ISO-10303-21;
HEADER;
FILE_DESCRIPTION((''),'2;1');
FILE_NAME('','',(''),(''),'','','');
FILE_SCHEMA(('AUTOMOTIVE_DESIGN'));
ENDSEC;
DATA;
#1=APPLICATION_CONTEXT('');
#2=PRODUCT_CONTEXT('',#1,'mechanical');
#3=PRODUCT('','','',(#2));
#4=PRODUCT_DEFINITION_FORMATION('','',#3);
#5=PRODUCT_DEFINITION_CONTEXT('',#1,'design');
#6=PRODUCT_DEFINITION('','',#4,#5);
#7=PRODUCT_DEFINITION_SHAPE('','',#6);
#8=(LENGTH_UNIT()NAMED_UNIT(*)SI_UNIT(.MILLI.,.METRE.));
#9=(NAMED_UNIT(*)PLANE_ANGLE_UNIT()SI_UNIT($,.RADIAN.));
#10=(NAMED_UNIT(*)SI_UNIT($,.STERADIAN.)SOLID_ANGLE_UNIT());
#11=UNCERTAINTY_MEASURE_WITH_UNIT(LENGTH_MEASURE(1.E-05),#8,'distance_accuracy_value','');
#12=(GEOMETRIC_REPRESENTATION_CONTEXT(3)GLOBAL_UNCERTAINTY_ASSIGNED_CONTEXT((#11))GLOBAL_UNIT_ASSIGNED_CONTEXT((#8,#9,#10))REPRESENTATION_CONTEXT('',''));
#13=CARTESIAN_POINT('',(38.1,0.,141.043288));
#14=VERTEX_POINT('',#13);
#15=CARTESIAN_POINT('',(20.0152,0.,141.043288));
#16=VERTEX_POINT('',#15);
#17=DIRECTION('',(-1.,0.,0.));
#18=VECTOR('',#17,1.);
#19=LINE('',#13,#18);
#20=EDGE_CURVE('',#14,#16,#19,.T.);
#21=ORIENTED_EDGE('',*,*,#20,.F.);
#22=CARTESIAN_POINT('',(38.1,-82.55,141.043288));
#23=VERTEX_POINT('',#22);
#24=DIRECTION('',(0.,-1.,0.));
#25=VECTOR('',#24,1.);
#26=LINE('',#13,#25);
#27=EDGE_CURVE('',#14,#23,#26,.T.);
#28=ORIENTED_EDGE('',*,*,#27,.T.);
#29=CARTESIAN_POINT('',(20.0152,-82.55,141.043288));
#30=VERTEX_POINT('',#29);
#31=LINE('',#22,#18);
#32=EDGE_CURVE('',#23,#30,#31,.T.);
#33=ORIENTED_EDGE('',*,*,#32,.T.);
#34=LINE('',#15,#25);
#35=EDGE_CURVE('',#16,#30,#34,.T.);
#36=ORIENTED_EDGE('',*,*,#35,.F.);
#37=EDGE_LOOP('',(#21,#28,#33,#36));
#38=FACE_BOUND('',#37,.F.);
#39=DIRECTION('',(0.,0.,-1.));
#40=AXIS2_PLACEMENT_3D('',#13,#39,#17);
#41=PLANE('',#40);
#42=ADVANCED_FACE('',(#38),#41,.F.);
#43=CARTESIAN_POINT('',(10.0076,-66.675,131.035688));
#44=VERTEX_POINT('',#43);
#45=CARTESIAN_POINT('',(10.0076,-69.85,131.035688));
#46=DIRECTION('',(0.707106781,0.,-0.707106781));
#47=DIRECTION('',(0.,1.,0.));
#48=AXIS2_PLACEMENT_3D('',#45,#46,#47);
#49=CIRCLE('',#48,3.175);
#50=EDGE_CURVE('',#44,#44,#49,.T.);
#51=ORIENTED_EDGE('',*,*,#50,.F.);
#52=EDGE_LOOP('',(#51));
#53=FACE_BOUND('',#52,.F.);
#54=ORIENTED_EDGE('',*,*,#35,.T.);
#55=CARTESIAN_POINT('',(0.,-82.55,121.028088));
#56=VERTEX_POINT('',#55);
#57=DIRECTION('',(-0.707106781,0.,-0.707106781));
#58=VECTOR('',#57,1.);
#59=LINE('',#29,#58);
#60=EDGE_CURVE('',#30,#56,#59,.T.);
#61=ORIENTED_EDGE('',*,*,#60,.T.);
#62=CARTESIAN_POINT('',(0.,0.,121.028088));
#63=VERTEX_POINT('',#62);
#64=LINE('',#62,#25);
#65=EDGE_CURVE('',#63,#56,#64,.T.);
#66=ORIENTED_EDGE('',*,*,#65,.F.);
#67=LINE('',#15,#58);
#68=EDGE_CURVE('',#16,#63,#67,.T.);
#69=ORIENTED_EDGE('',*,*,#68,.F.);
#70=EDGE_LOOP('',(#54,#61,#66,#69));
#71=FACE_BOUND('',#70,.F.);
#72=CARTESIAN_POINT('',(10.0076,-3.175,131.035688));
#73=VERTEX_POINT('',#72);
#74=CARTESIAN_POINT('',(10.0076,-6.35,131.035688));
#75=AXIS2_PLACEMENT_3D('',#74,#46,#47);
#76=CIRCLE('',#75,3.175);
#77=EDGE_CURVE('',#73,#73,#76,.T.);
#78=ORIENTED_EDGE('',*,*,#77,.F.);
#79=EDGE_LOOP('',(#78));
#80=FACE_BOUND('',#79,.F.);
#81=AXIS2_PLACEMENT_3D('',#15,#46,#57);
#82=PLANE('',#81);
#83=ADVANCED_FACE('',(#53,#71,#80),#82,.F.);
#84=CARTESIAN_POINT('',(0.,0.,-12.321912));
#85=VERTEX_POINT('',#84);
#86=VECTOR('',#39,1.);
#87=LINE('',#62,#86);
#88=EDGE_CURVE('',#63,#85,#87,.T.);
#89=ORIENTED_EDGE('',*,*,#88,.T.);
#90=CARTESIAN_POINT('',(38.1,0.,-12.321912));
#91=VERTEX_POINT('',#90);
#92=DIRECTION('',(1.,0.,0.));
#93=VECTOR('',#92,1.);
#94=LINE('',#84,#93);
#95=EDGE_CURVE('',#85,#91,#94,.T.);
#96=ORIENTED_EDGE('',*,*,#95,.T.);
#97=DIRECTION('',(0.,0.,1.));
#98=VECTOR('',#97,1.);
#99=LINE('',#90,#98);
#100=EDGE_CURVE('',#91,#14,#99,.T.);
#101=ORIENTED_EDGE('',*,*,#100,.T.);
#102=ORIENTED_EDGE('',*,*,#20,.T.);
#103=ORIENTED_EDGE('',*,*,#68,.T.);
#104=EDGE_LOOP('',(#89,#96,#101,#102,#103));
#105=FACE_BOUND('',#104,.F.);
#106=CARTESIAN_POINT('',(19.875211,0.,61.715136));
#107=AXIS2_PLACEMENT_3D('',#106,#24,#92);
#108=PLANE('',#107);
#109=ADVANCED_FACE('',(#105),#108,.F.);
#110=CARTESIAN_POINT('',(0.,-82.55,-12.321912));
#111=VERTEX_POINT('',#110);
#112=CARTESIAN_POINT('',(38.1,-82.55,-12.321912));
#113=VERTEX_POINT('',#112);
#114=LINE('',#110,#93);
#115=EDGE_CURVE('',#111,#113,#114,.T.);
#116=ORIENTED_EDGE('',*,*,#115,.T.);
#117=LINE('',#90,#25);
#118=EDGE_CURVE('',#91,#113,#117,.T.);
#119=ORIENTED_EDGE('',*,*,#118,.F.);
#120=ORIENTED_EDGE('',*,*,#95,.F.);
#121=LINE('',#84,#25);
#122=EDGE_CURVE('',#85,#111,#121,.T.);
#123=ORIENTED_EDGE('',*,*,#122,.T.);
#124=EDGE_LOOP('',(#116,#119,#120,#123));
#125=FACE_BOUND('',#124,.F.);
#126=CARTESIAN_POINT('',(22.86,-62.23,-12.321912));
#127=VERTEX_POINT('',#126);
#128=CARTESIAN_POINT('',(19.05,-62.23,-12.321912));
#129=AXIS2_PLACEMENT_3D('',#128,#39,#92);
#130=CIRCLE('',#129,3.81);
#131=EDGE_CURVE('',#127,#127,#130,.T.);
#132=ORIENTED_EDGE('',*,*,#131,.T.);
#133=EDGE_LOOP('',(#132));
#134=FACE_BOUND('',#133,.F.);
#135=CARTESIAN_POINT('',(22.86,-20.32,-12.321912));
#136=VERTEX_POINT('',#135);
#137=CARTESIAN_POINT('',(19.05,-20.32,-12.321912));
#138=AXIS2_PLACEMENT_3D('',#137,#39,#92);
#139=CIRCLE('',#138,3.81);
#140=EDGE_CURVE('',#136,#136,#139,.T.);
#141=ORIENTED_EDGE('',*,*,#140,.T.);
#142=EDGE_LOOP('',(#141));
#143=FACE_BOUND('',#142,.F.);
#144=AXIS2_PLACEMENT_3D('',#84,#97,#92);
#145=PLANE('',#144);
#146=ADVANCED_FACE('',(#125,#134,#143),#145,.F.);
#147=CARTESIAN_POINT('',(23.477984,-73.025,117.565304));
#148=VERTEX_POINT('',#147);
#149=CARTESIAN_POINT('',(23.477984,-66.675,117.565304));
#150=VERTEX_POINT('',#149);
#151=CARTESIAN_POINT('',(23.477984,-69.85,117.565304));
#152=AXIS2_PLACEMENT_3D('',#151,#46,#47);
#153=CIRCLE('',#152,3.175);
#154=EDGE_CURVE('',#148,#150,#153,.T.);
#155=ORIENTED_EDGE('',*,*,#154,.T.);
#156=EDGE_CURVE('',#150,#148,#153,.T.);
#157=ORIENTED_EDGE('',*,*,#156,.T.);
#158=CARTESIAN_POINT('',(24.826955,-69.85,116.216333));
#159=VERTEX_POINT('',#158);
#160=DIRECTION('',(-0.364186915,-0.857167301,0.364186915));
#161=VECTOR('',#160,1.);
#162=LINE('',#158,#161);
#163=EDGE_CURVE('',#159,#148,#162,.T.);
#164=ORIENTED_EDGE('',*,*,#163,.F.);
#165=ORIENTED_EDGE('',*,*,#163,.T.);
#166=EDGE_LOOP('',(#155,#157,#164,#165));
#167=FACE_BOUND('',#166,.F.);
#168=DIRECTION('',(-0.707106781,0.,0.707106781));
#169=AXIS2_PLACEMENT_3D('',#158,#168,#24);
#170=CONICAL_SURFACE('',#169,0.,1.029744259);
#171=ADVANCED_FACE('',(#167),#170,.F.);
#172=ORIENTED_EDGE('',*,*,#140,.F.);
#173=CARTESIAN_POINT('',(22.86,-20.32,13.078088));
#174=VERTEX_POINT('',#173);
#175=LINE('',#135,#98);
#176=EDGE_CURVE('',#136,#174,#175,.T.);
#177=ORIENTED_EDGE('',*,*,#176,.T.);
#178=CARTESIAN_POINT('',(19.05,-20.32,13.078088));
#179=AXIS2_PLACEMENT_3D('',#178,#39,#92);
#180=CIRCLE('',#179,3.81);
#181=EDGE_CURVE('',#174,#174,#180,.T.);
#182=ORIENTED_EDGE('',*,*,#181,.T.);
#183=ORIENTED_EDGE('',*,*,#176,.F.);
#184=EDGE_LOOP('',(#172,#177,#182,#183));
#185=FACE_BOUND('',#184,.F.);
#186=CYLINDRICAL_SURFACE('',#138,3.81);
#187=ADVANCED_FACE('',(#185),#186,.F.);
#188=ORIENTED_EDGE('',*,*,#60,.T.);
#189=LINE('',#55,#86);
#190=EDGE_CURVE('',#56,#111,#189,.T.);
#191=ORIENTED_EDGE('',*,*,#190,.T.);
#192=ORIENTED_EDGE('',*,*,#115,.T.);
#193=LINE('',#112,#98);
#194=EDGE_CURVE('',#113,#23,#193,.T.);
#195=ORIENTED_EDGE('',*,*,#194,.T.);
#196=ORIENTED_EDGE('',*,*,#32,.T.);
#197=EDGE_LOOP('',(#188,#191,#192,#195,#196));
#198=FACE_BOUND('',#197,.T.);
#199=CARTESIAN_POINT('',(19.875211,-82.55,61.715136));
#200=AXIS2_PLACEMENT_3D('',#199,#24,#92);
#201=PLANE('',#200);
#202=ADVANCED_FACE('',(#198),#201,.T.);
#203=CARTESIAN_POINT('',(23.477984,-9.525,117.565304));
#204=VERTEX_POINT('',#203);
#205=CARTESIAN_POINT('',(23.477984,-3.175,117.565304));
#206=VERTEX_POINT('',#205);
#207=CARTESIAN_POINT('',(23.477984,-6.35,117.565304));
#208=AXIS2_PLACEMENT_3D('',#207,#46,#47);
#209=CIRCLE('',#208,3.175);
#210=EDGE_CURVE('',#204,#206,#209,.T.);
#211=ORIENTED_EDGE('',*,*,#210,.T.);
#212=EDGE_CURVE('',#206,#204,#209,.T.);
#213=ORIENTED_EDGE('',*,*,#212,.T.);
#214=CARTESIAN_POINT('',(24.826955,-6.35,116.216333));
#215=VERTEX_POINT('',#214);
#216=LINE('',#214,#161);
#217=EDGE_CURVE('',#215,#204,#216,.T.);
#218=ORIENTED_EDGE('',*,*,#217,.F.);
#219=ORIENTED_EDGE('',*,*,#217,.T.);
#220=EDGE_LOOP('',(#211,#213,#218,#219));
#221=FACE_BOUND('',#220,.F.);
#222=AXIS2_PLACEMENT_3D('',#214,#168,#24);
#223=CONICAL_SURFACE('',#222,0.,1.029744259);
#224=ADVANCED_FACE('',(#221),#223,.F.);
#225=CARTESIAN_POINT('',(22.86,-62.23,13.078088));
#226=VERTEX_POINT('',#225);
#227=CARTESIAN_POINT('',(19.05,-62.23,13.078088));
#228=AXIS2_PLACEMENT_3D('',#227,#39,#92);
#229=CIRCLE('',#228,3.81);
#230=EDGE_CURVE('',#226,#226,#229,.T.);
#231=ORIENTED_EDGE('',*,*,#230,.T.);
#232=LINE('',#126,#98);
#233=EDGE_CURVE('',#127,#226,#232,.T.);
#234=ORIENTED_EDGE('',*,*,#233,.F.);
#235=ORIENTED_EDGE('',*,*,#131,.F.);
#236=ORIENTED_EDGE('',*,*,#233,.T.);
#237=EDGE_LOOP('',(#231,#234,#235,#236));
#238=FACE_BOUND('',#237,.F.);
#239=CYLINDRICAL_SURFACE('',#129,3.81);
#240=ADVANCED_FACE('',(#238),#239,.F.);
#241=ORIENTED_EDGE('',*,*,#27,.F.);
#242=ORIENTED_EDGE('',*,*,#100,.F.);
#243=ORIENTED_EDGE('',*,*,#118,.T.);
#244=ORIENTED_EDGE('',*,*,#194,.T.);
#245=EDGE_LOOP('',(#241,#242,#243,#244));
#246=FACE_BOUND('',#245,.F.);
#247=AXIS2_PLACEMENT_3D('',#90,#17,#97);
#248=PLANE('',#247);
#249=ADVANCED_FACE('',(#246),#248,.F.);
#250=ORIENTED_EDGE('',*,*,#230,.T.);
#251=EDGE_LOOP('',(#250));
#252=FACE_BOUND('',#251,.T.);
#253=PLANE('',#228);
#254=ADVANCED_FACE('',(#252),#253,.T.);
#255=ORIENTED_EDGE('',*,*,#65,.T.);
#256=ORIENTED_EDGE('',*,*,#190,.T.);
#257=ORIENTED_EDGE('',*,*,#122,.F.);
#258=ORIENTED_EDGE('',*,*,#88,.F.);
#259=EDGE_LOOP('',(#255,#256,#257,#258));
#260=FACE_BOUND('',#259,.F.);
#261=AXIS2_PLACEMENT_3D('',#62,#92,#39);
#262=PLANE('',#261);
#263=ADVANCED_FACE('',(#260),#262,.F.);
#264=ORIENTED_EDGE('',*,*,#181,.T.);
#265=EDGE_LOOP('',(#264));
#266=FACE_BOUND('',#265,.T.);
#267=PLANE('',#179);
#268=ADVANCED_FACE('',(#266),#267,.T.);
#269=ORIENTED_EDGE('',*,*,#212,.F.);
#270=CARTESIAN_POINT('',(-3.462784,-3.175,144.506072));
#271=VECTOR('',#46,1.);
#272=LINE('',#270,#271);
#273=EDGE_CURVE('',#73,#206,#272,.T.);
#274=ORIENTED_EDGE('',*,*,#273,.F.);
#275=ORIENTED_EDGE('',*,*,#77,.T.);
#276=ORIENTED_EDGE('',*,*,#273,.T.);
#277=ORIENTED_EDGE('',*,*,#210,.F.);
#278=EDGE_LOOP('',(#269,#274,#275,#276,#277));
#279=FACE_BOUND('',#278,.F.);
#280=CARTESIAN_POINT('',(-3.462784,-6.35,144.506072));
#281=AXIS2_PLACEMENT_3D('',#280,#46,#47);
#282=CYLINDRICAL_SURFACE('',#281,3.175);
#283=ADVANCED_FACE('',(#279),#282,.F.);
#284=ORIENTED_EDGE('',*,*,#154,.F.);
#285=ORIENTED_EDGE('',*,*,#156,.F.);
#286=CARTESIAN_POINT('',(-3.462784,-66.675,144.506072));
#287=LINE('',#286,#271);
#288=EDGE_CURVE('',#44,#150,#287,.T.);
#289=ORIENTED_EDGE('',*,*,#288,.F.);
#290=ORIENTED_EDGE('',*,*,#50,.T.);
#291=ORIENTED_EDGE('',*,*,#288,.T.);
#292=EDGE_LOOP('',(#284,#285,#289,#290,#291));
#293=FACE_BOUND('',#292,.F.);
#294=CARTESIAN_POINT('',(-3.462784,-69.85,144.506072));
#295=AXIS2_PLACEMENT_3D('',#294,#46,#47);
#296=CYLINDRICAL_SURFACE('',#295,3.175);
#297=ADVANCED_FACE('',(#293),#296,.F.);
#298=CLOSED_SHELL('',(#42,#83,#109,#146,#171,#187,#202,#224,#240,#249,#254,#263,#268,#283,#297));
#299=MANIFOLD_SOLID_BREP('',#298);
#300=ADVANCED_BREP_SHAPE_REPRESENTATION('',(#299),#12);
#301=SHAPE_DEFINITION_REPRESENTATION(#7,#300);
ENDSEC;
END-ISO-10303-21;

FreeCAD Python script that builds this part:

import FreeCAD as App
import Part
import Sketcher
from FreeCAD import Vector
Q = App.Units.Quantity


def add_polygon(sketch, points):
    """Adds a closed chain of lines whose ends are joined by coincident constraints."""
    first, n = sketch.GeometryCount, len(points)
    for a, b in zip(points, points[1:] + points[:1]):
        sketch.addGeometry(Part.LineSegment(App.Vector(*a, 0), App.Vector(*b, 0)), False)
    for i in range(n):
        sketch.addConstraint(Sketcher.Constraint("Coincident", first + i, 2, first + (i + 1) % n, 1))

doc = App.newDocument("Part")
params = doc.addObject("Spreadsheet::Sheet", "Params")
for row, (alias, value) in enumerate([
    ("sketch1_width", "1.5 in"),
    ("sketch1_height", "5.25 in"),
    ("sketch1_width2", "0.712 in"),
    ("pad1_length", "3.25 in"),
    ("sketch2_diameter", "0.3 in"),
    ("pocket1_length", "1 in"),
    ("sketch3_diameter", "0.25 in"),
    ("hole_diameter", "0.25 in"),
    ("hole_depth", "0.75 in"),
], start=1):
    params.set(f"A{row}", alias)
    params.set(f"B{row}", "=" + value)
    params.setAlias(f"B{row}", alias)

body = doc.addObject("PartDesign::Body", "Body")

# Sketch on XZ plane
sketch1 = doc.addObject("Sketcher::SketchObject", "Sketch")
body.addObject(sketch1)
sketch1.AttachmentSupport = (doc.XZ_Plane, [""])
sketch1.MapMode = "FlatFace"
add_polygon(sketch1, [(0, 121), (0, -12), (38, -12), (38, 141), (20, 141)])  # lines 0-4
sketch1.addConstraint([
    Sketcher.Constraint("Vertical", 0),
    Sketcher.Constraint("Horizontal", 1),
    Sketcher.Constraint("Vertical", 2),
    Sketcher.Constraint("Horizontal", 3),
    Sketcher.Constraint("PointOnObject", 0, 2, -2),
    Sketcher.Constraint("DistanceX", 1, 1, 1, 2, Q("1.5 in")),
    Sketcher.Constraint("Angle", 4, Q("-135 deg")),
    Sketcher.Constraint("DistanceY", 0, 2, 0, 1, Q("5.25 in")),
    Sketcher.Constraint("DistanceX", 3, 2, 3, 1, Q("0.712 in")),
    Sketcher.Constraint("DistanceY", 0, 2, -1, 1, Q("12.321912 mm")),
])
sketch1.setExpression("Constraints[10]", "Params.sketch1_width")
sketch1.setExpression("Constraints[12]", "Params.sketch1_height")
sketch1.setExpression("Constraints[13]", "Params.sketch1_width2")
pad1 = doc.addObject("PartDesign::Pad", "Pad")
body.addObject(pad1)
pad1.Profile = sketch1
pad1.setExpression("Length", "Params.pad1_length")

# Sketch on XY plane
sketch2 = doc.addObject("Sketcher::SketchObject", "Sketch001")
body.addObject(sketch2)
sketch2.AttachmentSupport = (doc.XY_Plane, [""])
sketch2.MapMode = "FlatFace"
sketch2.AttachmentOffset = App.Placement(Vector(0, 0, -12.321912), App.Rotation())
sketch2.addGeometry([
    Part.Circle(Vector(19.1, -62.2, 0), Vector(0, 0, 1), 3.8),
    Part.Circle(Vector(19.1, -20.3, 0), Vector(0, 0, 1), 3.8),
], False)
sketch2.addConstraint([
    Sketcher.Constraint("Equal", 0, 1),
    Sketcher.Constraint("Vertical", 0, 3, 1, 3),
    Sketcher.Constraint("Diameter", 0, Q("0.3 in")),
    Sketcher.Constraint("DistanceY", 1, 3, -1, 1, Q("0.8 in")),
    Sketcher.Constraint("DistanceX", -1, 1, 0, 3, Q("0.75 in")),
    Sketcher.Constraint("DistanceY", 0, 3, -1, 1, Q("2.45 in")),
])
sketch2.setExpression("Constraints[2]", "Params.sketch2_diameter")
pocket1 = doc.addObject("PartDesign::Pocket", "Pocket")
body.addObject(pocket1)
pocket1.Profile = sketch2
pocket1.setExpression("Length", "Params.pocket1_length")
pocket1.Reversed = True

# Sketch on an angled plane
sketch3 = doc.addObject("Sketcher::SketchObject", "Sketch002")
body.addObject(sketch3)
sketch3.Placement = App.Placement(Vector(-60.514044, 0, 60.514044), App.Rotation(Vector(0, -1, 0), Vector(0.707106781, 0, 0.707106781), Vector(-0.707106781, 0, 0.707106781), "ZXY"))
sketch3.addGeometry([
    Part.Circle(Vector(6.3, 99.7, 0), Vector(0, 0, 1), 3.2),
    Part.Circle(Vector(69.8, 99.7, 0), Vector(0, 0, 1), 3.2),
], False)
sketch3.addConstraint([
    Sketcher.Constraint("Equal", 0, 1),
    Sketcher.Constraint("Horizontal", 0, 3, 1, 3),
    Sketcher.Constraint("Diameter", 0, Q("0.25 in")),
    Sketcher.Constraint("DistanceX", 0, 3, 1, 3, Q("2.5 in")),
    Sketcher.Constraint("DistanceX", -1, 1, 0, 3, Q("0.25 in")),
    Sketcher.Constraint("DistanceY", -1, 1, 0, 3, Q("99.732665 mm")),
])
sketch3.setExpression("Constraints[2]", "Params.sketch3_diameter")
doc.recompute()
hole = doc.addObject("PartDesign::Hole", "Hole")
body.addObject(hole)
hole.Profile = sketch3
hole.ThreadType = "None"
hole.setExpression("Diameter", "Params.hole_diameter")
hole.DepthType = "Dimension"
hole.setExpression("Depth", "Params.hole_depth")
hole.DrillPoint = "Angled"
hole.DrillPointAngle = 118

doc.recompute()
